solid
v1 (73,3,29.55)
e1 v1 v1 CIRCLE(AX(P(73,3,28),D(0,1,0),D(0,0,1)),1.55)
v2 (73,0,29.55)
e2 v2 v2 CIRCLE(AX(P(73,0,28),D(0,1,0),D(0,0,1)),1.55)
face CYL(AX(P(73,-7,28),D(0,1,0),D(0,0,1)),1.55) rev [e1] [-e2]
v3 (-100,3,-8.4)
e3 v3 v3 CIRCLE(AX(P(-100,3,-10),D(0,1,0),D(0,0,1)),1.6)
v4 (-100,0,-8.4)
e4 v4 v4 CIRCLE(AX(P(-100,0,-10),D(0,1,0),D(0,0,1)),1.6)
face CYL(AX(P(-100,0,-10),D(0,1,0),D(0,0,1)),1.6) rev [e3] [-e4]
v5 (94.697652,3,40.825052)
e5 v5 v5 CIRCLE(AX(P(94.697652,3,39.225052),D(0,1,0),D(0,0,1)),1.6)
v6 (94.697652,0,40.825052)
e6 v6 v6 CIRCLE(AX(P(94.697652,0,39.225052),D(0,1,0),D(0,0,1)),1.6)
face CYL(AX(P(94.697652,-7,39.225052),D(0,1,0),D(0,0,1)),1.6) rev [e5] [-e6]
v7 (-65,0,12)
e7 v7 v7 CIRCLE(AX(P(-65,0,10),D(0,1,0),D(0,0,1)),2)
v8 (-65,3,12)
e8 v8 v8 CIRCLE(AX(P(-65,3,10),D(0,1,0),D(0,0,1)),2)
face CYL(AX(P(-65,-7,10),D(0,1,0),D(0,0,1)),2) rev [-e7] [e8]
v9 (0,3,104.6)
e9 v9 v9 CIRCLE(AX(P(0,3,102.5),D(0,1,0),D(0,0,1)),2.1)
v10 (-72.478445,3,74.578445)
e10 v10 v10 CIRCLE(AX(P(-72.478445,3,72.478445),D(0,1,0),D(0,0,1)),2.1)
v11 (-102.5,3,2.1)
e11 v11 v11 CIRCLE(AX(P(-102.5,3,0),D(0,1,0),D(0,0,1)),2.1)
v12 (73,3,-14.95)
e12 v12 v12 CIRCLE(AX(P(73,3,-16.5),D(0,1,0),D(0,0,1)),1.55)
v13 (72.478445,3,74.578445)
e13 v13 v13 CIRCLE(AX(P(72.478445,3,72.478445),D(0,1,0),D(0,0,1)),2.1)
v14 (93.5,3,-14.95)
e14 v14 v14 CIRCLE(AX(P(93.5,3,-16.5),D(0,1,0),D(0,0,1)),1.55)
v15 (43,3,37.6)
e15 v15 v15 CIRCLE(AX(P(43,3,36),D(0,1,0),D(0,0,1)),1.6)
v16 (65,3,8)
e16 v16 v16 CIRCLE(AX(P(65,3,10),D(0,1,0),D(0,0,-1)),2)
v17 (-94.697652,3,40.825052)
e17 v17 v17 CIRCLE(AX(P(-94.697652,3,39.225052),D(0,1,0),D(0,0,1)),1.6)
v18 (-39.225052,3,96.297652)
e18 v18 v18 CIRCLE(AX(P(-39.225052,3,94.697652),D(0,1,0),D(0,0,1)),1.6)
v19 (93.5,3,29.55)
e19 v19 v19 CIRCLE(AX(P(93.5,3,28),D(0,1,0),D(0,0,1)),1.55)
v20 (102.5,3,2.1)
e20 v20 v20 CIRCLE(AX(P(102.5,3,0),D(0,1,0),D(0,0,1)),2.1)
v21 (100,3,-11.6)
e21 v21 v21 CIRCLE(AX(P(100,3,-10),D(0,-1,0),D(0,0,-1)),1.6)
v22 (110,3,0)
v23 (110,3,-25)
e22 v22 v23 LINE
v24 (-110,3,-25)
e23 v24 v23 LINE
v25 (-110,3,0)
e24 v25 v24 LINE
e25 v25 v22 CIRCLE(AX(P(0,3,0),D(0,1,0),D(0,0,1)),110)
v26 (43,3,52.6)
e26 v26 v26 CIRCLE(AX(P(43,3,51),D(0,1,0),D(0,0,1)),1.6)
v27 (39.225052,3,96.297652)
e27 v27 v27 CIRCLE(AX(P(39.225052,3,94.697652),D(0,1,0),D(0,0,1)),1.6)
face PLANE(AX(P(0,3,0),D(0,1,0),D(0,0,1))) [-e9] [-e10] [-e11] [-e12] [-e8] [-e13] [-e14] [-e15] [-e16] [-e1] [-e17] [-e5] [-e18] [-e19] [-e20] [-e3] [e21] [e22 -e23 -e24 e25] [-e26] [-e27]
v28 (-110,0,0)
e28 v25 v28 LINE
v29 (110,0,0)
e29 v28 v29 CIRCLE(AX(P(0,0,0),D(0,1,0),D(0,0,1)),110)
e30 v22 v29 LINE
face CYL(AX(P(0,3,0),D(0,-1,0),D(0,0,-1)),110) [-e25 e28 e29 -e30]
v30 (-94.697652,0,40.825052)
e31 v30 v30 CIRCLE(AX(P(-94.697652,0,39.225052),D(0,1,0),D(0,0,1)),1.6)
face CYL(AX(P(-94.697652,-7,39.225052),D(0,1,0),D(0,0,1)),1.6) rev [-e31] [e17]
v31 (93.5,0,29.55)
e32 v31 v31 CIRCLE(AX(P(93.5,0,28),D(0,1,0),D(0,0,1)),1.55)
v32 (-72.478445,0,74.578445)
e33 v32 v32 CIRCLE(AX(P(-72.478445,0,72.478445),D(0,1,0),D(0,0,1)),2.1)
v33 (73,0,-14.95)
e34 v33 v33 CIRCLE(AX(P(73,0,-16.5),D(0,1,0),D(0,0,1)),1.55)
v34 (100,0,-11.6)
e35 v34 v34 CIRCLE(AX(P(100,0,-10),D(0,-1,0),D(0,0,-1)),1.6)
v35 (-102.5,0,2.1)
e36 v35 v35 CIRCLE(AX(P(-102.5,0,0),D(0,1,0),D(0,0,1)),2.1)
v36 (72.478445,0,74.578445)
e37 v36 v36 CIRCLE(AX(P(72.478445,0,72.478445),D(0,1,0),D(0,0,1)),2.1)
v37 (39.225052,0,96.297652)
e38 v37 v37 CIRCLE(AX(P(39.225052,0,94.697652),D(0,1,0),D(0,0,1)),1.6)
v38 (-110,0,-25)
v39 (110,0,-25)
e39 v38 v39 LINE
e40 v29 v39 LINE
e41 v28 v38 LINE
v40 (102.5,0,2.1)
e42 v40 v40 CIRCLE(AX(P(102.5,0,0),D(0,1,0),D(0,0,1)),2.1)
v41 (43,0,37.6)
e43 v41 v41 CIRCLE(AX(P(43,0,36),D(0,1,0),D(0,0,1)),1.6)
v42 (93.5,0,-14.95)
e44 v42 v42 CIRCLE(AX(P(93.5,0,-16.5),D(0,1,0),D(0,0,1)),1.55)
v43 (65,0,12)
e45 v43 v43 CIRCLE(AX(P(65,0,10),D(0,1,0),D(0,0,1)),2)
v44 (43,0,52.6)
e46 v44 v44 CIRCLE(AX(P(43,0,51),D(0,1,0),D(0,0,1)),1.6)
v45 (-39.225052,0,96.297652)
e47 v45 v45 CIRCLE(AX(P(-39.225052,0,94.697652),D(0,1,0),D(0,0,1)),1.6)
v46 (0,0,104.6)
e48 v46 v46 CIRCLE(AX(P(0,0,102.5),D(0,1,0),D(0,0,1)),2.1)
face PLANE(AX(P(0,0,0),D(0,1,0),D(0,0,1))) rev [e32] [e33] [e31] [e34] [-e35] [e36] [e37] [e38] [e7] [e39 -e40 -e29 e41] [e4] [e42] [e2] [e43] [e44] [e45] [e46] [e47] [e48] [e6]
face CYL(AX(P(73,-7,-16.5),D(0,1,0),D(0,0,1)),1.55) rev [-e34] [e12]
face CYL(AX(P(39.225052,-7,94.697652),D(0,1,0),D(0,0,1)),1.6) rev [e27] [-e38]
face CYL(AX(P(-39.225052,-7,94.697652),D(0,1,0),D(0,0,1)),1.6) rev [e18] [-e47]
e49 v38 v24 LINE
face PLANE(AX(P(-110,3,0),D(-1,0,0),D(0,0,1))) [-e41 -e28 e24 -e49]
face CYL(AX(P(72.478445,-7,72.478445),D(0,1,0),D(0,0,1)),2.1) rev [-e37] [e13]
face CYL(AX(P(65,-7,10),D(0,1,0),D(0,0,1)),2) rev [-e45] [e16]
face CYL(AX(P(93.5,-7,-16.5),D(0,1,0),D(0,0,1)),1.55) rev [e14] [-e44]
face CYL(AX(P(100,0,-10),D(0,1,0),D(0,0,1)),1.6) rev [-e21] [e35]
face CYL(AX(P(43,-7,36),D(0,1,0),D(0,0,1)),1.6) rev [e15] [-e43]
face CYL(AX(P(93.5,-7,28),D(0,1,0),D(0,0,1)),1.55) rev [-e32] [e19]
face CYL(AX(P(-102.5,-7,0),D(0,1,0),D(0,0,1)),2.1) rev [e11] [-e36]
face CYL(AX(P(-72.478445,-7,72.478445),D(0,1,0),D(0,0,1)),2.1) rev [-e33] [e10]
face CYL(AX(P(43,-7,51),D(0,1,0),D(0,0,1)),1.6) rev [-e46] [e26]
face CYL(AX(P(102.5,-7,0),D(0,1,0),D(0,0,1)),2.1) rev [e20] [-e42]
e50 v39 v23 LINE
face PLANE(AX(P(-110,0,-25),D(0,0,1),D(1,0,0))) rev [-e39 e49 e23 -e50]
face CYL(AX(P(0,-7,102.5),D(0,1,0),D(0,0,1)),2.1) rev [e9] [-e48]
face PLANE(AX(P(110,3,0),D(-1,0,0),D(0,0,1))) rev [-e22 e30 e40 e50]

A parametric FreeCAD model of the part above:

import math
import FreeCAD as App
import Part
import Sketcher

V = App.Vector


def add_polygon(sketch, points):
    """Adds a closed chain of lines whose ends are joined by coincident constraints."""
    first, n = sketch.GeometryCount, len(points)
    for a, b in zip(points, points[1:] + points[:1]):
        sketch.addGeometry(Part.LineSegment(App.Vector(*a, 0), App.Vector(*b, 0)), False)
    for i in range(n):
        sketch.addConstraint(Sketcher.Constraint("Coincident", first + i, 2, first + (i + 1) % n, 1))

doc = App.newDocument("Part")
body = doc.addObject("PartDesign::Body", "Body")

# Sketch on XZ plane
sketch1 = body.newObject("Sketcher::SketchObject", "Sketch")
sketch1.AttachmentSupport = (doc.getObject("XZ_Plane"), [""])
sketch1.MapMode = "FlatFace"
sketch1.addGeometry([
    Part.LineSegment(V(-110, -125, 0), V(-110, 0, 0)),
    Part.ArcOfCircle(Part.Circle(V(0, 0, 0), V(0, 0, 1), 110), math.radians(0), math.radians(180)),
    Part.LineSegment(V(110, 0, 0), V(110, -125, 0)),
    Part.LineSegment(V(110, -125, 0), V(-110, -125, 0)),
], False)
sketch1.addConstraint([
    Sketcher.Constraint("Tangent", 0, 2, 1, 2),
    Sketcher.Constraint("Tangent", 1, 1, 2, 1),
    Sketcher.Constraint("Coincident", 2, 2, 3, 1),
    Sketcher.Constraint("Coincident", 3, 2, 0, 1),
    Sketcher.Constraint("Vertical", 0),
    Sketcher.Constraint("Vertical", 2),
    Sketcher.Constraint("Horizontal", 3),
    Sketcher.Constraint("Coincident", 1, 3, -1, 1),
    Sketcher.Constraint("Radius", 1, 110.0),
    Sketcher.Constraint("DistanceY", 0, 1, 0, 2, 125.0),
])
pad1 = body.newObject("PartDesign::Pad", "Pad")
pad1.Profile = sketch1
pad1.Length = 3
pad1.Reversed = True

# Sketch on XZ plane
sketch2 = body.newObject("Sketcher::SketchObject", "Sketch001")
sketch2.AttachmentSupport = (doc.getObject("XZ_Plane"), [""])
sketch2.MapMode = "FlatFace"
sketch2.AttachmentOffset = App.Placement(V(0, 0, -3), App.Rotation())
add_polygon(sketch2, [(-110, -225), (-110, -25), (110, -25), (110, -225)])  # lines 0-3
sketch2.addConstraint([
    Sketcher.Constraint("Vertical", 0),
    Sketcher.Constraint("Horizontal", 1),
    Sketcher.Constraint("Vertical", 2),
    Sketcher.Constraint("Horizontal", 3),
    Sketcher.Constraint("DistanceX", 1, 1, 1, 2, 220.0),
    Sketcher.Constraint("DistanceY", 0, 1, 0, 2, 200.0),
    Sketcher.Constraint("DistanceX", 0, 2, -1, 1, 110.0),
    Sketcher.Constraint("DistanceY", 0, 2, -1, 1, 25.0),
])
pocket1 = body.newObject("PartDesign::Pocket", "Pocket")
pocket1.Profile = sketch2
pocket1.Type = "ThroughAll"
pocket1.Reversed = True

# Sketch on XZ plane
sketch3 = body.newObject("Sketcher::SketchObject", "Sketch002")
sketch3.AttachmentSupport = (doc.getObject("XZ_Plane"), [""])
sketch3.MapMode = "FlatFace"
sketch3.AttachmentOffset = App.Placement(V(0, 0, -3), App.Rotation())
sketch3.addGeometry([
    Part.Circle(V(-65, 10, 0), V(0, 0, 1), 2),  # 0
    Part.Circle(V(65, 10, 0), V(0, 0, 1), 2),  # 1
    Part.Circle(V(0, 102.5, 0), V(0, 0, 1), 2.1),  # 2
    Part.Circle(V(-72.5, 72.5, 0), V(0, 0, 1), 2.1),  # 3
    Part.Circle(V(-102.5, 0, 0), V(0, 0, 1), 2.1),  # 4
    Part.Circle(V(102.5, 0, 0), V(0, 0, 1), 2.1),  # 5
    Part.Circle(V(72.5, 72.5, 0), V(0, 0, 1), 2.1),  # 6
    Part.Circle(V(-94.7, 39.2, 0), V(0, 0, 1), 1.6),  # 7
    Part.Circle(V(94.7, 39.2, 0), V(0, 0, 1), 1.6),  # 8
    Part.Circle(V(39.2, 94.7, 0), V(0, 0, 1), 1.6),  # 9
    Part.Circle(V(-39.2, 94.7, 0), V(0, 0, 1), 1.6),  # 10
], False)
sketch3.addConstraint([
    Sketcher.Constraint("Equal", 0, 1),
    Sketcher.Constraint("Equal", 2, 3),
    Sketcher.Constraint("Equal", 3, 4),
    Sketcher.Constraint("Equal", 4, 5),
    Sketcher.Constraint("Equal", 5, 6),
    Sketcher.Constraint("Equal", 7, 8),
    Sketcher.Constraint("Equal", 8, 9),
    Sketcher.Constraint("Equal", 9, 10),
    Sketcher.Constraint("Symmetric", 4, 3, 5, 3, -1, 1),
    Sketcher.Constraint("Symmetric", 0, 3, 1, 3, -2),
    Sketcher.Constraint("Symmetric", 3, 3, 6, 3, -2),
    Sketcher.Constraint("Symmetric", 7, 3, 8, 3, -2),
    Sketcher.Constraint("Symmetric", 9, 3, 10, 3, -2),
    Sketcher.Constraint("PointOnObject", 2, 3, -2),
    Sketcher.Constraint("PointOnObject", 4, 3, -1),
    Sketcher.Constraint("Diameter", 0, 4.0),
    Sketcher.Constraint("Diameter", 2, 4.2),
    Sketcher.Constraint("Diameter", 7, 3.2),
    Sketcher.Constraint("DistanceX", 0, 3, -1, 1, 65.0),
    Sketcher.Constraint("DistanceY", -1, 1, 0, 3, 10.0),
    Sketcher.Constraint("DistanceX", 4, 3, 5, 3, 205.0),
    Sketcher.Constraint("DistanceY", -1, 1, 2, 3, 102.5),
    Sketcher.Constraint("DistanceX", 9, 3, 8, 3, 55.4726),
    Sketcher.Constraint("DistanceY", 8, 3, 9, 3, 55.4726),
    Sketcher.Constraint("DistanceY", -1, 1, 7, 3, 39.225052),
    Sketcher.Constraint("DistanceX", -1, 1, 9, 3, 39.225052),
    Sketcher.Constraint("DistanceX", 3, 3, 6, 3, 144.95689),
    Sketcher.Constraint("DistanceY", -1, 1, 3, 3, 72.478445),
])
pocket2 = body.newObject("PartDesign::Pocket", "Pocket001")
pocket2.Profile = sketch3
pocket2.Length = 10
pocket2.Reversed = True

# Sketch on XZ plane
sketch4 = body.newObject("Sketcher::SketchObject", "Sketch003")
sketch4.AttachmentSupport = (doc.getObject("XZ_Plane"), [""])
sketch4.MapMode = "FlatFace"
sketch4.AttachmentOffset = App.Placement(V(0, 0, -3), App.Rotation())
sketch4.addGeometry([
    Part.Circle(V(-100, -10, 0), V(0, 0, 1), 1.6),
    Part.Circle(V(100, -10, 0), V(0, 0, 1), 1.6),
], False)
sketch4.addConstraint([
    Sketcher.Constraint("Equal", 0, 1),
    Sketcher.Constraint("Symmetric", 0, 3, 1, 3, -2),
    Sketcher.Constraint("Diameter", 0, 3.2),
    Sketcher.Constraint("DistanceX", 0, 3, -1, 1, 100.0),
    Sketcher.Constraint("DistanceY", 0, 3, -1, 1, 10.0),
])
pocket3 = body.newObject("PartDesign::Pocket", "Pocket002")
pocket3.Profile = sketch4
pocket3.Type = "ThroughAll"
pocket3.Reversed = True

# Sketch on XZ plane
sketch5 = body.newObject("Sketcher::SketchObject", "Sketch004")
sketch5.AttachmentSupport = (doc.getObject("XZ_Plane"), [""])
sketch5.MapMode = "FlatFace"
sketch5.AttachmentOffset = App.Placement(V(0, 0, -3), App.Rotation())
sketch5.addGeometry([
    Part.Circle(V(-100, -10, 0), V(0, 0, 1), 1.6),  # 0
    Part.Circle(V(100, -10, 0), V(0, 0, 1), 1.6),  # 1
    Part.Circle(V(43, 36, 0), V(0, 0, 1), 1.6),  # 2
    Part.Circle(V(43, 51, 0), V(0, 0, 1), 1.6),  # 3
    Part.Circle(V(73, 28, 0), V(0, 0, 1), 1.6),  # 4
    Part.Circle(V(93.5, 28, 0), V(0, 0, 1), 1.6),  # 5
    Part.Circle(V(93.5, -16.5, 0), V(0, 0, 1), 1.6),  # 6
    Part.Circle(V(73, -16.5, 0), V(0, 0, 1), 1.6),  # 7
], False)
sketch5.addConstraint([
    Sketcher.Constraint("Equal", 0, 1),
    Sketcher.Constraint("Equal", 1, 2),
    Sketcher.Constraint("Equal", 2, 3),
    Sketcher.Constraint("Equal", 4, 5),
    Sketcher.Constraint("Equal", 5, 6),
    Sketcher.Constraint("Equal", 6, 7),
    Sketcher.Constraint("Symmetric", 0, 3, 1, 3, -2),
    Sketcher.Constraint("Horizontal", 4, 3, 5, 3),
    Sketcher.Constraint("Horizontal", 6, 3, 7, 3),
    Sketcher.Constraint("Vertical", 2, 3, 3, 3),
    Sketcher.Constraint("Vertical", 5, 3, 6, 3),
    Sketcher.Constraint("Vertical", 4, 3, 7, 3),
    Sketcher.Constraint("Diameter", 0, 3.2),
    Sketcher.Constraint("Diameter", 4, 3.1),
    Sketcher.Constraint("DistanceX", 0, 3, -1, 1, 100.0),
    Sketcher.Constraint("DistanceY", 0, 3, -1, 1, 10.0),
    Sketcher.Constraint("DistanceX", -1, 1, 2, 3, 43.0),
    Sketcher.Constraint("DistanceY", -1, 1, 2, 3, 36.0),
    Sketcher.Constraint("DistanceY", -1, 1, 3, 3, 51.0),
    Sketcher.Constraint("DistanceX", -1, 1, 4, 3, 73.0),
    Sketcher.Constraint("DistanceY", -1, 1, 4, 3, 28.0),
    Sketcher.Constraint("DistanceX", -1, 1, 5, 3, 93.5),
    Sketcher.Constraint("DistanceY", 6, 3, -1, 1, 16.5),
])
pocket4 = body.newObject("PartDesign::Pocket", "Pocket003")
pocket4.Profile = sketch5
pocket4.Length = 10
pocket4.Reversed = True

doc.recompute()
